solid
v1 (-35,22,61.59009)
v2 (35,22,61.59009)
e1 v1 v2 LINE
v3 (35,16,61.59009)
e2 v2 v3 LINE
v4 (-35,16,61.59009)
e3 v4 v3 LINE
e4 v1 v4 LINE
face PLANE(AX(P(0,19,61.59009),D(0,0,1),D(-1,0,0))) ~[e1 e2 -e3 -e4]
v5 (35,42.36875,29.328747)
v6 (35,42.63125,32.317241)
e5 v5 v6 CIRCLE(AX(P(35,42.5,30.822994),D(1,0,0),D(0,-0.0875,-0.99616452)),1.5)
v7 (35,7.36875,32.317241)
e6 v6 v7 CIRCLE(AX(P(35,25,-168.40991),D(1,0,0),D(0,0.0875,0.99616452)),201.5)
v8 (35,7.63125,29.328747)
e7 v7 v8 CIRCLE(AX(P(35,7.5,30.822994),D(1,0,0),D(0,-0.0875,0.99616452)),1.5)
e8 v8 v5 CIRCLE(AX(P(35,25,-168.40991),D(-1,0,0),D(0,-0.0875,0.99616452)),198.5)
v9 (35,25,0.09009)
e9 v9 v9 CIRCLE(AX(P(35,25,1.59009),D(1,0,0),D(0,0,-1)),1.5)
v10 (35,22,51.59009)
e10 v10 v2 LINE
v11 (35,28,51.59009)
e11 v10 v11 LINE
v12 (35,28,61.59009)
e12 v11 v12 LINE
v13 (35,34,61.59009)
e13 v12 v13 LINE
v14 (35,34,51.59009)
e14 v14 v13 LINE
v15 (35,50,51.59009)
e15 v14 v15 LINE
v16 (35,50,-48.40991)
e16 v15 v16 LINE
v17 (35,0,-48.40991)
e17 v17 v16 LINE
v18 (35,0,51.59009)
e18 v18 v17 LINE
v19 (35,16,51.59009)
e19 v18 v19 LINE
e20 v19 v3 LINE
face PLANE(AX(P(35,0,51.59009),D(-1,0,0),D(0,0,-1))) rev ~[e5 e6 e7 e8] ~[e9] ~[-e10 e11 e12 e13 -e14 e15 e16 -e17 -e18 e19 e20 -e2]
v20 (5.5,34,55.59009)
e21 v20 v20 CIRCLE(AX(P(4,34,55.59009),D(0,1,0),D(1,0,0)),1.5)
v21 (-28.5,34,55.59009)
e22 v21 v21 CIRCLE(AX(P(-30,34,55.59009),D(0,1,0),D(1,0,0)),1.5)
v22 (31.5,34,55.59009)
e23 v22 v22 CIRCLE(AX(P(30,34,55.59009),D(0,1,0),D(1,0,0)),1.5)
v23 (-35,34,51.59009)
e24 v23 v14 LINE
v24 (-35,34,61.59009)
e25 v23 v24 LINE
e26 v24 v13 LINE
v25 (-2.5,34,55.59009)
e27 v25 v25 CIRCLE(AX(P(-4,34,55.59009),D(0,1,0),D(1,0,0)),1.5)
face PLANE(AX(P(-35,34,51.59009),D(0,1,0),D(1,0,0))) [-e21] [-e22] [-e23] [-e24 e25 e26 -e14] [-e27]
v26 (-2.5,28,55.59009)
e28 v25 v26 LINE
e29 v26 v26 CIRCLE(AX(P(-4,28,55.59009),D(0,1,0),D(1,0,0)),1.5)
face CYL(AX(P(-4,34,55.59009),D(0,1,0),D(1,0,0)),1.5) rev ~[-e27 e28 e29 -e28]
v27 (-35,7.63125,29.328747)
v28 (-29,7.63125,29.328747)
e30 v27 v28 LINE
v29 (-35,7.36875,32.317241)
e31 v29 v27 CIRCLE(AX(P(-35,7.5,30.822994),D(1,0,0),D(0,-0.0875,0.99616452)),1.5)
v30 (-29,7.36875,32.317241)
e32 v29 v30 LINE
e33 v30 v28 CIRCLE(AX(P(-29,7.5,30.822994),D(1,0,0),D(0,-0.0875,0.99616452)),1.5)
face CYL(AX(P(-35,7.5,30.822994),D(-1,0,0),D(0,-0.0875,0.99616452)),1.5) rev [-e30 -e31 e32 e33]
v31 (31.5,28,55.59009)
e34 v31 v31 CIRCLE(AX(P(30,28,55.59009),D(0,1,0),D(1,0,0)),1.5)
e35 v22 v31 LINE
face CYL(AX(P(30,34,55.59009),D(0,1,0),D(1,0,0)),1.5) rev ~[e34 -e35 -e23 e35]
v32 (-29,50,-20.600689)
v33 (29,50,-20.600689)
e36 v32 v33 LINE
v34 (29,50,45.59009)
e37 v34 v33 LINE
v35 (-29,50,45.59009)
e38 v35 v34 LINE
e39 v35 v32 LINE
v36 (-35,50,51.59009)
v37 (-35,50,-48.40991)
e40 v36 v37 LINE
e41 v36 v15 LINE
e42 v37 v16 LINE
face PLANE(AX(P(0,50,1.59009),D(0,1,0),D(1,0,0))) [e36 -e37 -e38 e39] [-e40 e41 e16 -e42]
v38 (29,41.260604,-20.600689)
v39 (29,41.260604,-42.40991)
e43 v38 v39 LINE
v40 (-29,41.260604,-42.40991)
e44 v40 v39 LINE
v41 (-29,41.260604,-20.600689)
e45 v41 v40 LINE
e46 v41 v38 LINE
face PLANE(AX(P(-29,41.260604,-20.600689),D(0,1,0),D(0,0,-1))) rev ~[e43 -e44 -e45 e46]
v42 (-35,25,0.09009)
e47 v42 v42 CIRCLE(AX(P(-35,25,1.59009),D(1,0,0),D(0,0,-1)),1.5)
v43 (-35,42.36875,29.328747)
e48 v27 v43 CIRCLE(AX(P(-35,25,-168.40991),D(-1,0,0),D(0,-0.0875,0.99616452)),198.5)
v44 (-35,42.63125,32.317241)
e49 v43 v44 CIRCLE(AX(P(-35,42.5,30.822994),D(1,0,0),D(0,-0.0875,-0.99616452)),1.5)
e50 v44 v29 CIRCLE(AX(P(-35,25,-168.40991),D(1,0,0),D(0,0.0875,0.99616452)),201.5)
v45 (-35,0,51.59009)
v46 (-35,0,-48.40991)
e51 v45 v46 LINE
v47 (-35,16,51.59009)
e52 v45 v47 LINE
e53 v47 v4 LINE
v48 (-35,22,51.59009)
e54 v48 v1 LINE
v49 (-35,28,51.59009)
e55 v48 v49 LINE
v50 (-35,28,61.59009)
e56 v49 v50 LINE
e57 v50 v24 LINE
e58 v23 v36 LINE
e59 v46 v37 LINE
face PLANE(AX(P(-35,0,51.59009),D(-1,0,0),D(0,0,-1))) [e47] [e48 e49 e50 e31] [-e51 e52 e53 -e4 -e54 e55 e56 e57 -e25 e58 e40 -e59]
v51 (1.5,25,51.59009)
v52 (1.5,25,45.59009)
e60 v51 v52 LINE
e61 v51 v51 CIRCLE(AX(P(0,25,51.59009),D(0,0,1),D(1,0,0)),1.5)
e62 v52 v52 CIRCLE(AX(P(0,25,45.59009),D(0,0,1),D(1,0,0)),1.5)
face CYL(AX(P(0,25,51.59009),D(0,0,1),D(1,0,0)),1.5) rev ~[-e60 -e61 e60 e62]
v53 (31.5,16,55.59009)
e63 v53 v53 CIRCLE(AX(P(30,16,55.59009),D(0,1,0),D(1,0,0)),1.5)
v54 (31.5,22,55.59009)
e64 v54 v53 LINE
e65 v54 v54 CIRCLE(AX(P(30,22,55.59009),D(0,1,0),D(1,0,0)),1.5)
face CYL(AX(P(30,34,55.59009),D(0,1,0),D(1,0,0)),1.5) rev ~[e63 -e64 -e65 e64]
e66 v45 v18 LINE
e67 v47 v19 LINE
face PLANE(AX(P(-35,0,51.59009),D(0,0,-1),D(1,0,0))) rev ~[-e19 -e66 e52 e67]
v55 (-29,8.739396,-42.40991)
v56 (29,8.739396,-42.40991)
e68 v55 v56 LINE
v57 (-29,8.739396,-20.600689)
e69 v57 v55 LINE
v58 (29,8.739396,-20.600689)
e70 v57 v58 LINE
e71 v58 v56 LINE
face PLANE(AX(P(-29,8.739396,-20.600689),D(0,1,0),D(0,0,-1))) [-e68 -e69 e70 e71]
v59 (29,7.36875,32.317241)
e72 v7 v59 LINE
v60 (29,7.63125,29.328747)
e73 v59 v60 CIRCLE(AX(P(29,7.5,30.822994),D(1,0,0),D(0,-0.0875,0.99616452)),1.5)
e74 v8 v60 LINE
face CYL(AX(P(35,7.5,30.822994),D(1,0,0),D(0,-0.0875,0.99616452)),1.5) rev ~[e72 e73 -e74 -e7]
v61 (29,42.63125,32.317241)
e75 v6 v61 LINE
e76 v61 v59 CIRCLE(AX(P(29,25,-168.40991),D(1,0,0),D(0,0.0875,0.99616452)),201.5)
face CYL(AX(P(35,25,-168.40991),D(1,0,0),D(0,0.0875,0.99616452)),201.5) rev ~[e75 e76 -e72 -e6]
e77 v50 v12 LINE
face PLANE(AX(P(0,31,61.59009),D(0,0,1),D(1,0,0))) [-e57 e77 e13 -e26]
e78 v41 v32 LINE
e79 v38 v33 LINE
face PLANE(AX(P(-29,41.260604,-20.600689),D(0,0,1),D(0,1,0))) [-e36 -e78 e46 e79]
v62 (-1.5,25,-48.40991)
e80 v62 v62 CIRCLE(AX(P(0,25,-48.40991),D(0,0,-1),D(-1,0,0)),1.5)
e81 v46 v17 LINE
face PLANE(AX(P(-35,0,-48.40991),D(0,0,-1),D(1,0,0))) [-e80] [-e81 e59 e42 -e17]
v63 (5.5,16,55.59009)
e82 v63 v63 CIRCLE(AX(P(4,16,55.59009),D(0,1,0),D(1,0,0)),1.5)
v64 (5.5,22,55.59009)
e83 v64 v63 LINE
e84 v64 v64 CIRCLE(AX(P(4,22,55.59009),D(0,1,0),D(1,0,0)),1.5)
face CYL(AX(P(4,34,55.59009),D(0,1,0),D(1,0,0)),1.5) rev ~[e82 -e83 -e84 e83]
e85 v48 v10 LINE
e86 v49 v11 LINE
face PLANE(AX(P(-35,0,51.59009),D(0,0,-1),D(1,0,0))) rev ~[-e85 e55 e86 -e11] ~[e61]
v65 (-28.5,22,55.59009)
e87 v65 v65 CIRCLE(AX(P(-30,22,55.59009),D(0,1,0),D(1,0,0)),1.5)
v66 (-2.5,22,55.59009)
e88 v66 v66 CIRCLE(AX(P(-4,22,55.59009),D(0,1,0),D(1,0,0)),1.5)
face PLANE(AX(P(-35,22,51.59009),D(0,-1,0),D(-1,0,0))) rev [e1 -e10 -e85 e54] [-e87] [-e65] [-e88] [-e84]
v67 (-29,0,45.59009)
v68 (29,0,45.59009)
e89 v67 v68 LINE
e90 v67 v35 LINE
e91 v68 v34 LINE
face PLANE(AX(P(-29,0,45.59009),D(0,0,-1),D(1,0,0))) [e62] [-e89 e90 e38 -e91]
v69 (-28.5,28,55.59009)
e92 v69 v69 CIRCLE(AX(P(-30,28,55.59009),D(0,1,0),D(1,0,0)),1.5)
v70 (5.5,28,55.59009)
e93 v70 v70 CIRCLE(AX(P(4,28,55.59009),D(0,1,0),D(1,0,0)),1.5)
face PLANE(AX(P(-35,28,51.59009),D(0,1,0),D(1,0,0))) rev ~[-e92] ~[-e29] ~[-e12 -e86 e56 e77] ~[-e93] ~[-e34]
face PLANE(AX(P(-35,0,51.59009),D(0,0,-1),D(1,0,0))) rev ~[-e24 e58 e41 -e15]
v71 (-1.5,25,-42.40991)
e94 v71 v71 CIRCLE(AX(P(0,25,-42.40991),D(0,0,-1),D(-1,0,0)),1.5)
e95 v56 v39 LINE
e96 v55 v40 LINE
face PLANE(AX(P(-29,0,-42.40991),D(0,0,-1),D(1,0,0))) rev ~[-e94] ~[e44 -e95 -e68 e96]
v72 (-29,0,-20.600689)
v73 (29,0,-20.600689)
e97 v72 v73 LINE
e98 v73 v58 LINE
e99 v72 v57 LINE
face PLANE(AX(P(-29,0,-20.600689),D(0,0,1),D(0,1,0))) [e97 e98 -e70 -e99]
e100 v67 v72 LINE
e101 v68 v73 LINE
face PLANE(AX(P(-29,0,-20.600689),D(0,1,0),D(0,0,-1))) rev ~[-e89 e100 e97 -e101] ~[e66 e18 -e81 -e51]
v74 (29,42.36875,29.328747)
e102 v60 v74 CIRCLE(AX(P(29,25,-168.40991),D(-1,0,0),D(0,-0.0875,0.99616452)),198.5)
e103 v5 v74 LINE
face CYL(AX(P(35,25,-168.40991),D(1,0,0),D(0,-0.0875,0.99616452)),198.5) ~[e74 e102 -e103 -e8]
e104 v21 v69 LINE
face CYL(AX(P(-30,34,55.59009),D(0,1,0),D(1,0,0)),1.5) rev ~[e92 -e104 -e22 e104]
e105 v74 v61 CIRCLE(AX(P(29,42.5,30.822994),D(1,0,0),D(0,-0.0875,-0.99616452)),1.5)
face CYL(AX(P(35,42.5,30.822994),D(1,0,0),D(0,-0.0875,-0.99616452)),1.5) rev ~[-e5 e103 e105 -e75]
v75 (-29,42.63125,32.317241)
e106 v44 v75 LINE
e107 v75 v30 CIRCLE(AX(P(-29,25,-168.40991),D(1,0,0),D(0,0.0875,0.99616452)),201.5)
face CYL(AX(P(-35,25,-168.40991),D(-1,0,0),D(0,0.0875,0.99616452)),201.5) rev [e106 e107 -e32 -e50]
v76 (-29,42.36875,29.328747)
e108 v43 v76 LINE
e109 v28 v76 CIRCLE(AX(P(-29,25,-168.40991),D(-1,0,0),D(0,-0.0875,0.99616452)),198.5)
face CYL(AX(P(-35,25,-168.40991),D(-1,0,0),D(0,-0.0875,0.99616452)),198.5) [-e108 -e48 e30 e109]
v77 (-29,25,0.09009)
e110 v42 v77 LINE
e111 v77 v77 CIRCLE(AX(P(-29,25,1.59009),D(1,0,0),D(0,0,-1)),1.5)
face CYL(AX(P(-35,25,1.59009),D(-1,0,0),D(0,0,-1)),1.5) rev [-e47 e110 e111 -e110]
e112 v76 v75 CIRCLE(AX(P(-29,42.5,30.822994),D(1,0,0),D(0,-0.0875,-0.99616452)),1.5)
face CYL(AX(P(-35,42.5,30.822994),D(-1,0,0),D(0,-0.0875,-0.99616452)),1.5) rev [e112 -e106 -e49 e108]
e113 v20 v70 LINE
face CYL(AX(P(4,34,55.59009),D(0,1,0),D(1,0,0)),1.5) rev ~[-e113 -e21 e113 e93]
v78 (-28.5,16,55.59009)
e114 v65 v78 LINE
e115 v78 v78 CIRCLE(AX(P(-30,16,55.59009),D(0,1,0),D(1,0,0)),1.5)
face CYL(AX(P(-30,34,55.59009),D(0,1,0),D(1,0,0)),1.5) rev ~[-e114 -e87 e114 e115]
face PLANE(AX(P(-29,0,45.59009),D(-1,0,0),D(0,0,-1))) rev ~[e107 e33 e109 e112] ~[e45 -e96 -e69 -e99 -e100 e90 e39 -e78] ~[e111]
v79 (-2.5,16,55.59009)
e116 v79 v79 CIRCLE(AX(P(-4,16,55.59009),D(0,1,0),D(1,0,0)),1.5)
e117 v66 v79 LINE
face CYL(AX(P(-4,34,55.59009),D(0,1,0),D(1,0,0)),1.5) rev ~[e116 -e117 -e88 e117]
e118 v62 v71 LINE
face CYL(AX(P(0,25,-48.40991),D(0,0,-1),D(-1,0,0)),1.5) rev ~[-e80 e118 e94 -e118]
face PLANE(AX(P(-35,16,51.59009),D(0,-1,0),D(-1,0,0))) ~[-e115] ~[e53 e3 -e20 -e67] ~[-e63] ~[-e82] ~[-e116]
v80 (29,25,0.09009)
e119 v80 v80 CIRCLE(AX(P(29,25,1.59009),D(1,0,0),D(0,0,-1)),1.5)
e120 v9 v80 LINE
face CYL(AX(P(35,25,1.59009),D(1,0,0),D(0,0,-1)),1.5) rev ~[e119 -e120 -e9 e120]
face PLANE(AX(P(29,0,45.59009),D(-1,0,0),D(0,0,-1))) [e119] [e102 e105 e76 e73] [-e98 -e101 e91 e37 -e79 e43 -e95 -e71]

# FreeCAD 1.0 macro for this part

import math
import FreeCAD as App
import Part
import Sketcher

doc = App.newDocument("Part")
body = doc.addObject("PartDesign::Body", "Body")

# Sketch on XZ plane
sketch1 = body.newObject("Sketcher::SketchObject", "Sketch")
sketch1.AttachmentSupport = (doc.getObject("XZ_Plane"), [""])
sketch1.MapMode = "FlatFace"
sketch1.addGeometry([
    Part.LineSegment(App.Vector(-35, -48, 0), App.Vector(-35, 52, 0)),  # 0
    Part.LineSegment(App.Vector(-35, 52, 0), App.Vector(35, 52, 0)),  # 1
    Part.LineSegment(App.Vector(35, 52, 0), App.Vector(35, -48, 0)),  # 2
    Part.LineSegment(App.Vector(35, -48, 0), App.Vector(-35, -48, 0)),  # 3
    Part.LineSegment(App.Vector(29, 46, 0), App.Vector(-29, 46, 0)),  # 4
    Part.LineSegment(App.Vector(-29, 46, 0), App.Vector(-29, -42, 0)),  # 5
    Part.LineSegment(App.Vector(-29, -42, 0), App.Vector(29, -42, 0)),  # 6
    Part.LineSegment(App.Vector(29, -42, 0), App.Vector(29, 46, 0)),  # 7
], False)
sketch1.addConstraint([
    Sketcher.Constraint("Coincident", 0, 2, 1, 1),
    Sketcher.Constraint("Coincident", 1, 2, 2, 1),
    Sketcher.Constraint("Coincident", 2, 2, 3, 1),
    Sketcher.Constraint("Coincident", 3, 2, 0, 1),
    Sketcher.Constraint("Coincident", 4, 2, 5, 1),
    Sketcher.Constraint("Coincident", 5, 2, 6, 1),
    Sketcher.Constraint("Coincident", 6, 2, 7, 1),
    Sketcher.Constraint("Coincident", 7, 2, 4, 1),
    Sketcher.Constraint("Vertical", 0),
    Sketcher.Constraint("Horizontal", 1),
    Sketcher.Constraint("Vertical", 2),
    Sketcher.Constraint("Horizontal", 3),
    Sketcher.Constraint("Horizontal", 4),
    Sketcher.Constraint("Vertical", 5),
    Sketcher.Constraint("Horizontal", 6),
    Sketcher.Constraint("Vertical", 7),
    Sketcher.Constraint("DistanceX", 1, 1, 1, 2, 70.0),
    Sketcher.Constraint("DistanceX", 4, 2, 4, 1, 58.0),
    Sketcher.Constraint("DistanceY", 0, 1, 0, 2, 100.0),
    Sketcher.Constraint("DistanceY", 5, 2, 5, 1, 88.0),
    Sketcher.Constraint("DistanceX", 0, 2, -1, 1, 35.0),
    Sketcher.Constraint("DistanceX", 4, 2, -1, 1, 29.0),
    Sketcher.Constraint("DistanceY", 4, 2, 0, 2, 6.0),
    Sketcher.Constraint("DistanceY", -1, 1, 0, 2, 51.59009),
])
pad1 = body.newObject("PartDesign::Pad", "Pad")
pad1.Profile = sketch1
pad1.Length = 50
pad1.Reversed = True

# Sketch on XY plane
sketch2 = body.newObject("Sketcher::SketchObject", "Sketch001")
sketch2.AttachmentSupport = (doc.getObject("XY_Plane"), [""])
sketch2.MapMode = "FlatFace"
sketch2.AttachmentOffset = App.Placement(App.Vector(0, 0, 51.59009), App.Rotation())
sketch2.addGeometry(Part.Circle(App.Vector(0, 25, 0), App.Vector(0, 0, 1), 1.5), False)
sketch2.addConstraint([
    Sketcher.Constraint("PointOnObject", 0, 3, -2),
    Sketcher.Constraint("Diameter", 0, 3.0),
    Sketcher.Constraint("DistanceY", -1, 1, 0, 3, 25.0),
])
pocket1 = body.newObject("PartDesign::Pocket", "Pocket")
pocket1.Profile = sketch2
pocket1.Type = "UpToFirst"

# Sketch on XY plane
sketch3 = body.newObject("Sketcher::SketchObject", "Sketch002")
sketch3.AttachmentSupport = (doc.getObject("XY_Plane"), [""])
sketch3.MapMode = "FlatFace"
sketch3.AttachmentOffset = App.Placement(App.Vector(0, 0, -48.40991), App.Rotation())
sketch3.addGeometry(Part.Circle(App.Vector(0, 25, 0), App.Vector(0, 0, 1), 1.5), False)
sketch3.addConstraint([
    Sketcher.Constraint("PointOnObject", 0, 3, -2),
    Sketcher.Constraint("Diameter", 0, 3.0),
    Sketcher.Constraint("DistanceY", -1, 1, 0, 3, 25.0),
])
pocket2 = body.newObject("PartDesign::Pocket", "Pocket001")
pocket2.Profile = sketch3
pocket2.Type = "UpToFirst"
pocket2.Reversed = True

# Sketch on XY plane
sketch4 = body.newObject("Sketcher::SketchObject", "Sketch003")
sketch4.AttachmentSupport = (doc.getObject("XY_Plane"), [""])
sketch4.MapMode = "FlatFace"
sketch4.AttachmentOffset = App.Placement(App.Vector(0, 0, 51.59009), App.Rotation())
sketch4.addGeometry([
    Part.LineSegment(App.Vector(-35, 34, 0), App.Vector(-35, 28, 0)),
    Part.LineSegment(App.Vector(-35, 28, 0), App.Vector(35, 28, 0)),
    Part.LineSegment(App.Vector(35, 28, 0), App.Vector(35, 34, 0)),
    Part.LineSegment(App.Vector(35, 34, 0), App.Vector(-35, 34, 0)),
], False)
sketch4.addConstraint([
    Sketcher.Constraint("Coincident", 0, 2, 1, 1),
    Sketcher.Constraint("Coincident", 1, 2, 2, 1),
    Sketcher.Constraint("Coincident", 2, 2, 3, 1),
    Sketcher.Constraint("Coincident", 3, 2, 0, 1),
    Sketcher.Constraint("Vertical", 0),
    Sketcher.Constraint("Horizontal", 1),
    Sketcher.Constraint("Vertical", 2),
    Sketcher.Constraint("Horizontal", 3),
    Sketcher.Constraint("DistanceX", 1, 1, 1, 2, 70.0),
    Sketcher.Constraint("DistanceY", 0, 2, 0, 1, 6.0),
    Sketcher.Constraint("DistanceX", 0, 2, -1, 1, 35.0),
    Sketcher.Constraint("DistanceY", -1, 1, 0, 2, 28.0),
])
pad2 = body.newObject("PartDesign::Pad", "Pad001")
pad2.Profile = sketch4
pad2.Length = 10
doc.recompute()

datumplane = body.newObject("PartDesign::Plane", "DatumPlane")
datumplane.AttachmentSupport = (doc.getObject("XZ_Plane"), [""])
datumplane.MapMode = "FlatFace"
datumplane.AttachmentOffset = App.Placement(App.Vector(0, 0, -25), App.Rotation())
mirrored = body.newObject("PartDesign::Mirrored", "Mirrored")
mirrored.Originals = [pad2]
mirrored.MirrorPlane = (datumplane, [""])
body.Tip = mirrored

# Sketch on XZ plane
sketch5 = body.newObject("Sketcher::SketchObject", "Sketch004")
sketch5.AttachmentSupport = (doc.getObject("XZ_Plane"), [""])
sketch5.MapMode = "FlatFace"
sketch5.AttachmentOffset = App.Placement(App.Vector(0, 0, -34), App.Rotation())
sketch5.addGeometry([
    Part.Circle(App.Vector(4, 55.6, 0), App.Vector(0, 0, 1), 1.5),
    Part.Circle(App.Vector(30, 55.6, 0), App.Vector(0, 0, 1), 1.5),
    Part.Circle(App.Vector(-30, 55.6, 0), App.Vector(0, 0, 1), 1.5),
    Part.Circle(App.Vector(-4, 55.6, 0), App.Vector(0, 0, 1), 1.5),
], False)
sketch5.addConstraint([
    Sketcher.Constraint("Equal", 0, 1),
    Sketcher.Constraint("Equal", 1, 2),
    Sketcher.Constraint("Equal", 2, 3),
    Sketcher.Constraint("Symmetric", 1, 3, 2, 3, -2),
    Sketcher.Constraint("Symmetric", 0, 3, 3, 3, -2),
    Sketcher.Constraint("Horizontal", 0, 3, 1, 3),
    Sketcher.Constraint("Diameter", 0, 3.0),
    Sketcher.Constraint("DistanceX", -1, 1, 0, 3, 4.0),
    Sketcher.Constraint("DistanceX", -1, 1, 1, 3, 30.0),
    Sketcher.Constraint("DistanceY", -1, 1, 0, 3, 55.59009),
])
pocket3 = body.newObject("PartDesign::Pocket", "Pocket002")
pocket3.Profile = sketch5
pocket3.Type = "ThroughAll"
pocket3.Reversed = True

# Sketch on YZ plane
sketch6 = body.newObject("Sketcher::SketchObject", "Sketch005")
sketch6.AttachmentSupport = (doc.getObject("YZ_Plane"), [""])
sketch6.MapMode = "FlatFace"
sketch6.AttachmentOffset = App.Placement(App.Vector(0, 0, 35), App.Rotation())
sketch6.addGeometry(Part.Circle(App.Vector(25, 1.6, 0), App.Vector(0, 0, 1), 1.5), False)
sketch6.addConstraint([
    Sketcher.Constraint("Diameter", 0, 3.0),
    Sketcher.Constraint("DistanceX", -1, 1, 0, 3, 25.0),
    Sketcher.Constraint("DistanceY", -1, 1, 0, 3, 1.59009),
])
pocket4 = body.newObject("PartDesign::Pocket", "Pocket003")
pocket4.Profile = sketch6
pocket4.Length = 6
doc.recompute()

mirrored2 = body.newObject("PartDesign::Mirrored", "Mirrored001")
mirrored2.Originals = [pocket4]
mirrored2.MirrorPlane = (doc.getObject("YZ_Plane"), [""])
body.Tip = mirrored2

# Sketch on YZ plane
sketch7 = body.newObject("Sketcher::SketchObject", "Sketch006")
sketch7.AttachmentSupport = (doc.getObject("YZ_Plane"), [""])
sketch7.MapMode = "FlatFace"
sketch7.AttachmentOffset = App.Placement(App.Vector(0, 0, -29), App.Rotation())
sketch7.addGeometry([
    Part.LineSegment(App.Vector(9, -21, 0), App.Vector(0, -21, 0)),  # 0
    Part.LineSegment(App.Vector(0, -21, 0), App.Vector(0, -44, 0)),  # 1
    Part.LineSegment(App.Vector(0, -44, 0), App.Vector(9, -44, 0)),  # 2
    Part.LineSegment(App.Vector(9, -44, 0), App.Vector(9, -21, 0)),  # 3
    Part.LineSegment(App.Vector(50, -21, 0), App.Vector(41, -21, 0)),  # 4
    Part.LineSegment(App.Vector(41, -21, 0), App.Vector(41, -44, 0)),  # 5
    Part.LineSegment(App.Vector(41, -44, 0), App.Vector(50, -44, 0)),  # 6
    Part.LineSegment(App.Vector(50, -44, 0), App.Vector(50, -21, 0)),  # 7
], False)
sketch7.addConstraint([
    Sketcher.Constraint("Coincident", 0, 2, 1, 1),
    Sketcher.Constraint("Coincident", 1, 2, 2, 1),
    Sketcher.Constraint("Coincident", 2, 2, 3, 1),
    Sketcher.Constraint("Coincident", 3, 2, 0, 1),
    Sketcher.Constraint("Coincident", 4, 2, 5, 1),
    Sketcher.Constraint("Coincident", 5, 2, 6, 1),
    Sketcher.Constraint("Coincident", 6, 2, 7, 1),
    Sketcher.Constraint("Coincident", 7, 2, 4, 1),
    Sketcher.Constraint("Horizontal", 0),
    Sketcher.Constraint("Vertical", 1),
    Sketcher.Constraint("Horizontal", 2),
    Sketcher.Constraint("Vertical", 3),
    Sketcher.Constraint("Horizontal", 4),
    Sketcher.Constraint("Vertical", 5),
    Sketcher.Constraint("Horizontal", 6),
    Sketcher.Constraint("Vertical", 7),
    Sketcher.Constraint("PointOnObject", 0, 2, -2),
    Sketcher.Constraint("Horizontal", 3, 2, 4, 2),
    Sketcher.Constraint("Horizontal", 2, 2, 5, 2),
    Sketcher.Constraint("Equal", 2, 4),
    Sketcher.Constraint("DistanceY", 1, 2, 1, 1, 23.0),
    Sketcher.Constraint("DistanceX", -1, 1, 6, 2, 50.0),
    Sketcher.Constraint("DistanceX", 0, 2, 0, 1, 8.739396),
    Sketcher.Constraint("DistanceY", 0, 2, -1, 1, 20.600689),
])
pad3 = body.newObject("PartDesign::Pad", "Pad002")
pad3.Profile = sketch7
pad3.Length = 58

# Sketch on YZ plane
sketch8 = body.newObject("Sketcher::SketchObject", "Sketch007")
sketch8.AttachmentSupport = (doc.getObject("YZ_Plane"), [""])
sketch8.MapMode = "FlatFace"
sketch8.AttachmentOffset = App.Placement(App.Vector(0, 0, 35), App.Rotation())
sketch8.addGeometry([
    Part.ArcOfCircle(Part.Circle(App.Vector(25, -168.4, 0), App.Vector(0, 0, 1), 201.5), math.radians(84.98), math.radians(95.02)),
    Part.ArcOfCircle(Part.Circle(App.Vector(7.5, 30.8, 0), App.Vector(0, 0, 1), 1.5), math.radians(95), math.radians(275)),
    Part.ArcOfCircle(Part.Circle(App.Vector(25, -168.4, 0), App.Vector(0, 0, 1), 198.5), math.radians(84.98), math.radians(95.02)),
    Part.ArcOfCircle(Part.Circle(App.Vector(42.5, 30.8, 0), App.Vector(0, 0, 1), 1.5), math.radians(-95), math.radians(85)),
], False)
sketch8.addConstraint([
    Sketcher.Constraint("Tangent", 0, 2, 1, 1),
    Sketcher.Constraint("Tangent", 1, 2, 2, 2),
    Sketcher.Constraint("Tangent", 2, 1, 3, 1),
    Sketcher.Constraint("Tangent", 3, 2, 0, 1),
    Sketcher.Constraint("Coincident", 2, 3, 0, 3),
    Sketcher.Constraint("Horizontal", 1, 3, 3, 3),
    Sketcher.Constraint("Radius", 0, 201.5),
    Sketcher.Constraint("Radius", 1, 1.5),
    Sketcher.Constraint("DistanceX", -1, 1, 0, 3, 25.0),
    Sketcher.Constraint("DistanceX", 1, 3, 3, 3, 35.0),
    Sketcher.Constraint("DistanceY", 0, 3, -1, 1, 168.40991),
])
pocket5 = body.newObject("PartDesign::Pocket", "Pocket004")
pocket5.Profile = sketch8
pocket5.Length = 6
doc.recompute()

mirrored3 = body.newObject("PartDesign::Mirrored", "Mirrored002")
mirrored3.Originals = [pocket5]
mirrored3.MirrorPlane = (doc.getObject("YZ_Plane"), [""])
body.Tip = mirrored3

doc.recompute()
